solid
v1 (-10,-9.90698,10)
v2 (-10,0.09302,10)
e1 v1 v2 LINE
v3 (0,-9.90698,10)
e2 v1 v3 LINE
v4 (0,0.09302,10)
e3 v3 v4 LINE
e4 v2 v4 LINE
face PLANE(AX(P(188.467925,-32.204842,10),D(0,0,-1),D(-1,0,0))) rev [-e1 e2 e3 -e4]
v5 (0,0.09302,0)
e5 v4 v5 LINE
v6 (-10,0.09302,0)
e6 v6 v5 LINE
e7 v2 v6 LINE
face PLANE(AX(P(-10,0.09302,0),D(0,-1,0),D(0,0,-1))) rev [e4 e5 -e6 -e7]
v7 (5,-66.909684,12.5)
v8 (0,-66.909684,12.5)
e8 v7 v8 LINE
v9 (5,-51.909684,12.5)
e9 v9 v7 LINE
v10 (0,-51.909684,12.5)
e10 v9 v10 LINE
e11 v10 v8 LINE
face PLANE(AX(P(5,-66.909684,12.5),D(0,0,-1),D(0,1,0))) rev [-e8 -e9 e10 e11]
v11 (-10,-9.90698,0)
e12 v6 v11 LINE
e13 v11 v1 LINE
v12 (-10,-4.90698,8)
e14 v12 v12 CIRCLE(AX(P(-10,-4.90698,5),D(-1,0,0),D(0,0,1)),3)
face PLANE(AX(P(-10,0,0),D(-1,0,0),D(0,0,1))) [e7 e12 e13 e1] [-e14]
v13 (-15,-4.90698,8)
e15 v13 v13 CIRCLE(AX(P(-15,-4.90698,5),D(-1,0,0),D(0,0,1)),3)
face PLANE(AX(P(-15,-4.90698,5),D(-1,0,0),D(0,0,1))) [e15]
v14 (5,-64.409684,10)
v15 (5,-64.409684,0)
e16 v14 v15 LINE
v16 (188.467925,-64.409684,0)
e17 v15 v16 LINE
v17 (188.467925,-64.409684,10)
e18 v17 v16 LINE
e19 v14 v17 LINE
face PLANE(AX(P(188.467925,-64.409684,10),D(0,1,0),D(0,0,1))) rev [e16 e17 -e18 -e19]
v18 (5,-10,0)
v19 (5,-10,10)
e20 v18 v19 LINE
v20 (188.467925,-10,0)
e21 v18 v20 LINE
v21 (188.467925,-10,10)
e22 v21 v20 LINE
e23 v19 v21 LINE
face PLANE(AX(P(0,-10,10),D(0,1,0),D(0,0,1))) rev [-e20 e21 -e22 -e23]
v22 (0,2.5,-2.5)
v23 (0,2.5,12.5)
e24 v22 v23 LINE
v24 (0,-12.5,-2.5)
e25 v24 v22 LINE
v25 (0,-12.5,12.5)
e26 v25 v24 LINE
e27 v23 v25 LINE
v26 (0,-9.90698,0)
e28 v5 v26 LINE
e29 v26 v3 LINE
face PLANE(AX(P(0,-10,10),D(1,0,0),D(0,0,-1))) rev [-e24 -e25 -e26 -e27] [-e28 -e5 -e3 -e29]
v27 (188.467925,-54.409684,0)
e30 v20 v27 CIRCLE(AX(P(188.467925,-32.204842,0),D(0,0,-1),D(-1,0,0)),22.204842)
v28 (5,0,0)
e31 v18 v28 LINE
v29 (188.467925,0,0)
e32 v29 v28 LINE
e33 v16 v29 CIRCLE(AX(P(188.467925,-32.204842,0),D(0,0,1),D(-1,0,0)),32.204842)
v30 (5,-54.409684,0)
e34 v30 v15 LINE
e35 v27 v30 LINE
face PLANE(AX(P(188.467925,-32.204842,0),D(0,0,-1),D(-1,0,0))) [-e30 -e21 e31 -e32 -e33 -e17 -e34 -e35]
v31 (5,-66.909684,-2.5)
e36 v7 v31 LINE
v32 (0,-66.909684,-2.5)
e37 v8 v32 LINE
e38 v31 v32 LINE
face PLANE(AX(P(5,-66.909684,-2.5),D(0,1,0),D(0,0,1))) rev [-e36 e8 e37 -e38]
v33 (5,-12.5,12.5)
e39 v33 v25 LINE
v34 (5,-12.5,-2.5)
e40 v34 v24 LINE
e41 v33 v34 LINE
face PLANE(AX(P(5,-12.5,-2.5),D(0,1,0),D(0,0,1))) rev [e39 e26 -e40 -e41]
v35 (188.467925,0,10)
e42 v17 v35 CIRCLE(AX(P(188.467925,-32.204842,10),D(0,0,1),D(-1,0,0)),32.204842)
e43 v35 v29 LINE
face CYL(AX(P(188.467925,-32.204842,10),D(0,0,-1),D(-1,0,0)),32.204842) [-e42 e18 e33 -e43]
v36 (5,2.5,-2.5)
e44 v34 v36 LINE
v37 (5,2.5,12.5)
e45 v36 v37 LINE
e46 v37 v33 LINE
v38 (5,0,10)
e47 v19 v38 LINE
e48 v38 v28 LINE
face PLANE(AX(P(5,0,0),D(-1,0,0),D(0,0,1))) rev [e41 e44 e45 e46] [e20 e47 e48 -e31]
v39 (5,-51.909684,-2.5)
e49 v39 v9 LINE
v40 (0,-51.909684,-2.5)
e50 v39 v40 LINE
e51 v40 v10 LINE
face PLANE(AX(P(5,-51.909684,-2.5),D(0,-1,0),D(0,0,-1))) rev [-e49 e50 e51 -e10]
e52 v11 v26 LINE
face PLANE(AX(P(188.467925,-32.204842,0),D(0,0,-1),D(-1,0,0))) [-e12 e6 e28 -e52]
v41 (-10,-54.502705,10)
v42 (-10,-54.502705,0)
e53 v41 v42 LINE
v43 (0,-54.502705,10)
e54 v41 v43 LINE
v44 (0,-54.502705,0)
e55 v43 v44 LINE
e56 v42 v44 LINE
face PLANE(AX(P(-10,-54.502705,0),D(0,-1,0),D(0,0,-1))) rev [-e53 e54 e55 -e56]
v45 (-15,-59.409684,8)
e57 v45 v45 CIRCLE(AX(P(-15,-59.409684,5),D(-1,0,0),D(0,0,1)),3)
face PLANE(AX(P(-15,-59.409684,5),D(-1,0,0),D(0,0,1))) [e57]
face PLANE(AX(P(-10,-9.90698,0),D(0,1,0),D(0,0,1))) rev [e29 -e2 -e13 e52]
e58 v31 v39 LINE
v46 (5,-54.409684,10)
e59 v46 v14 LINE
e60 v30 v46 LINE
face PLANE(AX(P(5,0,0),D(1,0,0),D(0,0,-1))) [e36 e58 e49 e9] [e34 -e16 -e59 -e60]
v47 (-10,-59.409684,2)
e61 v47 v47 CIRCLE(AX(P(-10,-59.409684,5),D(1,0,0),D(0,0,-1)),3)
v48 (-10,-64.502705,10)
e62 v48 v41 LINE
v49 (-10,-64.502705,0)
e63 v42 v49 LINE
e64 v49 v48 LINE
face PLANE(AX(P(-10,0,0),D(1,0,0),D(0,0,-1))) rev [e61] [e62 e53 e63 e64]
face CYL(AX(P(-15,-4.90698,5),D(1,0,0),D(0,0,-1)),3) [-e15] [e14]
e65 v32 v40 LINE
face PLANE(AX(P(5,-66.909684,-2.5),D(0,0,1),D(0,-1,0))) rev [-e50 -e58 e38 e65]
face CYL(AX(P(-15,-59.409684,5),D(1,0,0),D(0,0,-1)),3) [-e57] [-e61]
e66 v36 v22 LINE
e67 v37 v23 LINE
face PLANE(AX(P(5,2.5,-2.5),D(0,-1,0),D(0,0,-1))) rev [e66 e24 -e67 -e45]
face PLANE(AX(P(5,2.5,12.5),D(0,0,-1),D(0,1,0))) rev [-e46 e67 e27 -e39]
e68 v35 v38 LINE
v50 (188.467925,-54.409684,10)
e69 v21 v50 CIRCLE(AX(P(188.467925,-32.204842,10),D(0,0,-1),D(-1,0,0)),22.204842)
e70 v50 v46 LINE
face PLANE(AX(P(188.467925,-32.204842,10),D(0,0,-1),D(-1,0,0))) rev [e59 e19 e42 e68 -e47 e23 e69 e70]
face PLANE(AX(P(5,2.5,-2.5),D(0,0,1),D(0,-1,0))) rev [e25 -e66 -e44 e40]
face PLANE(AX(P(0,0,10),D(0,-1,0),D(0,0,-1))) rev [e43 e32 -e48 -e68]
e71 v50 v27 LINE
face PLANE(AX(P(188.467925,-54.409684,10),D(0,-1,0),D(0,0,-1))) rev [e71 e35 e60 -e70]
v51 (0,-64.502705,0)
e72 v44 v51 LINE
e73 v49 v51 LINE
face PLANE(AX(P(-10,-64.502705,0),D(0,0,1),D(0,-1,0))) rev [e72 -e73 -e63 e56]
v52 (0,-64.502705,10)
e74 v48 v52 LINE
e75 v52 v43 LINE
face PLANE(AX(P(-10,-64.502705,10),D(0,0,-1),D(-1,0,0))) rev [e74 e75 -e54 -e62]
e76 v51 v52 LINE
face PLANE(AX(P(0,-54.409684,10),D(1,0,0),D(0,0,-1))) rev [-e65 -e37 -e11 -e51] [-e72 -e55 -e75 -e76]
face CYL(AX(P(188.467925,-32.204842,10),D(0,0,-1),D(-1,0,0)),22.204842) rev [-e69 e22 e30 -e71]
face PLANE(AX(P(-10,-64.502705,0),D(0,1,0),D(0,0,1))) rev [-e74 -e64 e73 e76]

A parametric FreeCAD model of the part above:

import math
import FreeCAD as App
import Part
import Sketcher
Q = App.Units.Quantity

doc = App.newDocument("Part")
body = doc.addObject("PartDesign::Body", "Body")

# Sketch on XY plane
sketch1 = body.newObject("Sketcher::SketchObject", "Sketch")
sketch1.AttachmentSupport = (doc.getObject("XY_Plane"), [""])
sketch1.MapMode = "FlatFace"
sketch1.addGeometry(Part.LineSegment(App.Vector(188, 0, 0), App.Vector(0, 0, 0)), False)
sketch1.addGeometry(Part.LineSegment(App.Vector(0, 0, 0), App.Vector(0, -10, 0)), False)
sketch1.addGeometry(Part.LineSegment(App.Vector(0, -10, 0), App.Vector(188, -10, 0)), False)
sketch1.addGeometry(Part.ArcOfCircle(Part.Circle(App.Vector(188, -32, 0), App.Vector(0, 0, 1), 22), math.radians(-90), math.radians(90)), False)
sketch1.addGeometry(Part.LineSegment(App.Vector(188, -54, 0), App.Vector(0, -54, 0)), False)
sketch1.addGeometry(Part.LineSegment(App.Vector(0, -54, 0), App.Vector(0, -64, 0)), False)
sketch1.addGeometry(Part.LineSegment(App.Vector(0, -64, 0), App.Vector(188, -64, 0)), False)
sketch1.addGeometry(Part.ArcOfCircle(Part.Circle(App.Vector(188, -32, 0), App.Vector(0, 0, 1), 32), math.radians(-90), math.radians(90)), False)
sketch1.addConstraint(Sketcher.Constraint("Coincident", 0, 2, 1, 1))
sketch1.addConstraint(Sketcher.Constraint("Coincident", 1, 2, 2, 1))
sketch1.addConstraint(Sketcher.Constraint("Tangent", 2, 2, 3, 2))
sketch1.addConstraint(Sketcher.Constraint("Tangent", 3, 1, 4, 1))
sketch1.addConstraint(Sketcher.Constraint("Coincident", 4, 2, 5, 1))
sketch1.addConstraint(Sketcher.Constraint("Coincident", 5, 2, 6, 1))
sketch1.addConstraint(Sketcher.Constraint("Tangent", 6, 2, 7, 1))
sketch1.addConstraint(Sketcher.Constraint("Tangent", 7, 2, 0, 1))
sketch1.addConstraint(Sketcher.Constraint("Horizontal", 0))
sketch1.addConstraint(Sketcher.Constraint("Vertical", 1))
sketch1.addConstraint(Sketcher.Constraint("Horizontal", 2))
sketch1.addConstraint(Sketcher.Constraint("Horizontal", 4))
sketch1.addConstraint(Sketcher.Constraint("Vertical", 5))
sketch1.addConstraint(Sketcher.Constraint("Horizontal", 6))
sketch1.addConstraint(Sketcher.Constraint("Coincident", 0, 2, -1, 1))
sketch1.addConstraint(Sketcher.Constraint("Coincident", 7, 3, 3, 3))
sketch1.addConstraint(Sketcher.Constraint("PointOnObject", 4, 2, -2))
sketch1.addConstraint(Sketcher.Constraint("DistanceY", 1, 2, 1, 1, Q("10 mm")))
sketch1.addConstraint(Sketcher.Constraint("Radius", 3, Q("22.204842 mm")))
sketch1.addConstraint(Sketcher.Constraint("DistanceX", 0, 2, 0, 1, Q("188.467925 mm")))
pad1 = body.newObject("PartDesign::Pad", "Pad")
pad1.Profile = sketch1
pad1.Length = 10

# Sketch on YZ plane
sketch2 = body.newObject("Sketcher::SketchObject", "Sketch001")
sketch2.AttachmentSupport = (doc.getObject("YZ_Plane"), [""])
sketch2.MapMode = "FlatFace"
sketch2.addGeometry(Part.Circle(App.Vector(-4.9, 5, 0), App.Vector(0, 0, 1), 3), False)
sketch2.addConstraint(Sketcher.Constraint("Diameter", 0, Q("6 mm")))
sketch2.addConstraint(Sketcher.Constraint("DistanceY", -1, 1, 0, 3, Q("5 mm")))
sketch2.addConstraint(Sketcher.Constraint("DistanceX", 0, 3, -1, 1, Q("4.90698 mm")))
pad2 = body.newObject("PartDesign::Pad", "Pad001")
pad2.Profile = sketch2
pad2.Length = 15
pad2.Reversed = True
body2 = doc.addObject("PartDesign::Body", "Body001")

# Sketch on YZ plane
sketch3 = body2.newObject("Sketcher::SketchObject", "Sketch002")
sketch3.AttachmentSupport = (doc.getObject("YZ_Plane001"), [""])
sketch3.MapMode = "FlatFace"
sketch3.addGeometry(Part.Circle(App.Vector(-59.4, 5, 0), App.Vector(0, 0, 1), 3), False)
sketch3.addConstraint(Sketcher.Constraint("Diameter", 0, Q("6 mm")))
sketch3.addConstraint(Sketcher.Constraint("DistanceY", -1, 1, 0, 3, Q("5 mm")))
sketch3.addConstraint(Sketcher.Constraint("DistanceX", 0, 3, -1, 1, Q("59.409684 mm")))
pad3 = body2.newObject("PartDesign::Pad", "Pad002")
pad3.Profile = sketch3
pad3.Length = 15
pad3.Reversed = True
body3 = doc.addObject("PartDesign::Body", "Body002")

# Sketch on YZ plane
sketch4 = body3.newObject("Sketcher::SketchObject", "Sketch003")
sketch4.AttachmentSupport = (doc.getObject("YZ_Plane002"), [""])
sketch4.MapMode = "FlatFace"
sketch4.addGeometry(Part.LineSegment(App.Vector(-52, 12, 0), App.Vector(-67, 12, 0)), False)
sketch4.addGeometry(Part.LineSegment(App.Vector(-67, 12, 0), App.Vector(-67, -2, 0)), False)
sketch4.addGeometry(Part.LineSegment(App.Vector(-67, -2, 0), App.Vector(-52, -2, 0)), False)
sketch4.addGeometry(Part.LineSegment(App.Vector(-52, -2, 0), App.Vector(-52, 12, 0)), False)
sketch4.addConstraint(Sketcher.Constraint("Coincident", 0, 2, 1, 1))
sketch4.addConstraint(Sketcher.Constraint("Coincident", 1, 2, 2, 1))
sketch4.addConstraint(Sketcher.Constraint("Coincident", 2, 2, 3, 1))
sketch4.addConstraint(Sketcher.Constraint("Coincident", 3, 2, 0, 1))
sketch4.addConstraint(Sketcher.Constraint("Horizontal", 0))
sketch4.addConstraint(Sketcher.Constraint("Vertical", 1))
sketch4.addConstraint(Sketcher.Constraint("Horizontal", 2))
sketch4.addConstraint(Sketcher.Constraint("Vertical", 3))
sketch4.addConstraint(Sketcher.Constraint("Equal", 2, 1))
sketch4.addConstraint(Sketcher.Constraint("DistanceX", 0, 2, 0, 1, Q("15 mm")))
sketch4.addConstraint(Sketcher.Constraint("DistanceY", -1, 1, 0, 2, Q("12.5 mm")))
sketch4.addConstraint(Sketcher.Constraint("DistanceX", 0, 2, -1, 1, Q("66.909684 mm")))
pad4 = body3.newObject("PartDesign::Pad", "Pad003")
pad4.Profile = sketch4
pad4.Length = 5
body4 = doc.addObject("PartDesign::Body", "Body003")

# Sketch on YZ plane
sketch5 = body4.newObject("Sketcher::SketchObject", "Sketch004")
sketch5.AttachmentSupport = (doc.getObject("YZ_Plane003"), [""])
sketch5.MapMode = "FlatFace"
sketch5.addGeometry(Part.LineSegment(App.Vector(2, 12, 0), App.Vector(-12, 12, 0)), False)
sketch5.addGeometry(Part.LineSegment(App.Vector(-12, 12, 0), App.Vector(-12, -2, 0)), False)
sketch5.addGeometry(Part.LineSegment(App.Vector(-12, -2, 0), App.Vector(2, -2, 0)), False)
sketch5.addGeometry(Part.LineSegment(App.Vector(2, -2, 0), App.Vector(2, 12, 0)), False)
sketch5.addConstraint(Sketcher.Constraint("Coincident", 0, 2, 1, 1))
sketch5.addConstraint(Sketcher.Constraint("Coincident", 1, 2, 2, 1))
sketch5.addConstraint(Sketcher.Constraint("Coincident", 2, 2, 3, 1))
sketch5.addConstraint(Sketcher.Constraint("Coincident", 3, 2, 0, 1))
sketch5.addConstraint(Sketcher.Constraint("Horizontal", 0))
sketch5.addConstraint(Sketcher.Constraint("Vertical", 1))
sketch5.addConstraint(Sketcher.Constraint("Horizontal", 2))
sketch5.addConstraint(Sketcher.Constraint("Vertical", 3))
sketch5.addConstraint(Sketcher.Constraint("Equal", 2, 1))
sketch5.addConstraint(Sketcher.Constraint("DistanceX", 0, 2, 0, 1, Q("15 mm")))
sketch5.addConstraint(Sketcher.Constraint("DistanceX", 0, 2, -1, 1, Q("12.5 mm")))
sketch5.addConstraint(Sketcher.Constraint("DistanceY", -1, 1, 0, 2, Q("12.5 mm")))
pad5 = body4.newObject("PartDesign::Pad", "Pad004")
pad5.Profile = sketch5
pad5.Length = 5
doc.recompute()

boolean = body.newObject("PartDesign::Boolean", "Boolean")
boolean.Type = "Fuse"
boolean.addObjects([body2])
doc.recompute()

boolean2 = body.newObject("PartDesign::Boolean", "Boolean001")
boolean2.Type = "Fuse"
boolean2.addObjects([body3])
doc.recompute()

boolean3 = body.newObject("PartDesign::Boolean", "Boolean002")
boolean3.Type = "Fuse"
boolean3.addObjects([body4])

# Sketch on YZ plane
sketch6 = body.newObject("Sketcher::SketchObject", "Sketch005")
sketch6.AttachmentSupport = (doc.getObject("YZ_Plane"), [""])
sketch6.MapMode = "FlatFace"
sketch6.addGeometry(Part.LineSegment(App.Vector(-55, 0, 0), App.Vector(-65, 0, 0)), False)
sketch6.addGeometry(Part.LineSegment(App.Vector(-65, 0, 0), App.Vector(-65, 10, 0)), False)
sketch6.addGeometry(Part.LineSegment(App.Vector(-65, 10, 0), App.Vector(-55, 10, 0)), False)
sketch6.addGeometry(Part.LineSegment(App.Vector(-55, 10, 0), App.Vector(-55, 0, 0)), False)
sketch6.addGeometry(Part.LineSegment(App.Vector(0, 0, 0), App.Vector(-10, 0, 0)), False)
sketch6.addGeometry(Part.LineSegment(App.Vector(-10, 0, 0), App.Vector(-10, 10, 0)), False)
sketch6.addGeometry(Part.LineSegment(App.Vector(-10, 10, 0), App.Vector(0, 10, 0)), False)
sketch6.addGeometry(Part.LineSegment(App.Vector(0, 10, 0), App.Vector(0, 0, 0)), False)
sketch6.addConstraint(Sketcher.Constraint("Coincident", 0, 2, 1, 1))
sketch6.addConstraint(Sketcher.Constraint("Coincident", 1, 2, 2, 1))
sketch6.addConstraint(Sketcher.Constraint("Coincident", 2, 2, 3, 1))
sketch6.addConstraint(Sketcher.Constraint("Coincident", 3, 2, 0, 1))
sketch6.addConstraint(Sketcher.Constraint("Coincident", 4, 2, 5, 1))
sketch6.addConstraint(Sketcher.Constraint("Coincident", 5, 2, 6, 1))
sketch6.addConstraint(Sketcher.Constraint("Coincident", 6, 2, 7, 1))
sketch6.addConstraint(Sketcher.Constraint("Coincident", 7, 2, 4, 1))
sketch6.addConstraint(Sketcher.Constraint("Horizontal", 0))
sketch6.addConstraint(Sketcher.Constraint("Vertical", 1))
sketch6.addConstraint(Sketcher.Constraint("Horizontal", 2))
sketch6.addConstraint(Sketcher.Constraint("Vertical", 3))
sketch6.addConstraint(Sketcher.Constraint("Horizontal", 4))
sketch6.addConstraint(Sketcher.Constraint("Vertical", 5))
sketch6.addConstraint(Sketcher.Constraint("Horizontal", 6))
sketch6.addConstraint(Sketcher.Constraint("Vertical", 7))
sketch6.addConstraint(Sketcher.Constraint("PointOnObject", 0, 2, -1))
sketch6.addConstraint(Sketcher.Constraint("PointOnObject", 4, 2, -1))
sketch6.addConstraint(Sketcher.Constraint("Horizontal", 2, 2, 5, 2))
sketch6.addConstraint(Sketcher.Constraint("Equal", 2, 4))
sketch6.addConstraint(Sketcher.Constraint("Equal", 6, 1))
sketch6.addConstraint(Sketcher.Constraint("DistanceX", 0, 2, 0, 1, Q("10 mm")))
sketch6.addConstraint(Sketcher.Constraint("DistanceX", 4, 2, -1, 1, Q("9.90698 mm")))
sketch6.addConstraint(Sketcher.Constraint("DistanceX", 0, 2, -1, 1, Q("64.502705 mm")))
pad6 = body.newObject("PartDesign::Pad", "Pad005")
pad6.Profile = sketch6
pad6.Length = 10
pad6.Reversed = True

doc.recompute()
